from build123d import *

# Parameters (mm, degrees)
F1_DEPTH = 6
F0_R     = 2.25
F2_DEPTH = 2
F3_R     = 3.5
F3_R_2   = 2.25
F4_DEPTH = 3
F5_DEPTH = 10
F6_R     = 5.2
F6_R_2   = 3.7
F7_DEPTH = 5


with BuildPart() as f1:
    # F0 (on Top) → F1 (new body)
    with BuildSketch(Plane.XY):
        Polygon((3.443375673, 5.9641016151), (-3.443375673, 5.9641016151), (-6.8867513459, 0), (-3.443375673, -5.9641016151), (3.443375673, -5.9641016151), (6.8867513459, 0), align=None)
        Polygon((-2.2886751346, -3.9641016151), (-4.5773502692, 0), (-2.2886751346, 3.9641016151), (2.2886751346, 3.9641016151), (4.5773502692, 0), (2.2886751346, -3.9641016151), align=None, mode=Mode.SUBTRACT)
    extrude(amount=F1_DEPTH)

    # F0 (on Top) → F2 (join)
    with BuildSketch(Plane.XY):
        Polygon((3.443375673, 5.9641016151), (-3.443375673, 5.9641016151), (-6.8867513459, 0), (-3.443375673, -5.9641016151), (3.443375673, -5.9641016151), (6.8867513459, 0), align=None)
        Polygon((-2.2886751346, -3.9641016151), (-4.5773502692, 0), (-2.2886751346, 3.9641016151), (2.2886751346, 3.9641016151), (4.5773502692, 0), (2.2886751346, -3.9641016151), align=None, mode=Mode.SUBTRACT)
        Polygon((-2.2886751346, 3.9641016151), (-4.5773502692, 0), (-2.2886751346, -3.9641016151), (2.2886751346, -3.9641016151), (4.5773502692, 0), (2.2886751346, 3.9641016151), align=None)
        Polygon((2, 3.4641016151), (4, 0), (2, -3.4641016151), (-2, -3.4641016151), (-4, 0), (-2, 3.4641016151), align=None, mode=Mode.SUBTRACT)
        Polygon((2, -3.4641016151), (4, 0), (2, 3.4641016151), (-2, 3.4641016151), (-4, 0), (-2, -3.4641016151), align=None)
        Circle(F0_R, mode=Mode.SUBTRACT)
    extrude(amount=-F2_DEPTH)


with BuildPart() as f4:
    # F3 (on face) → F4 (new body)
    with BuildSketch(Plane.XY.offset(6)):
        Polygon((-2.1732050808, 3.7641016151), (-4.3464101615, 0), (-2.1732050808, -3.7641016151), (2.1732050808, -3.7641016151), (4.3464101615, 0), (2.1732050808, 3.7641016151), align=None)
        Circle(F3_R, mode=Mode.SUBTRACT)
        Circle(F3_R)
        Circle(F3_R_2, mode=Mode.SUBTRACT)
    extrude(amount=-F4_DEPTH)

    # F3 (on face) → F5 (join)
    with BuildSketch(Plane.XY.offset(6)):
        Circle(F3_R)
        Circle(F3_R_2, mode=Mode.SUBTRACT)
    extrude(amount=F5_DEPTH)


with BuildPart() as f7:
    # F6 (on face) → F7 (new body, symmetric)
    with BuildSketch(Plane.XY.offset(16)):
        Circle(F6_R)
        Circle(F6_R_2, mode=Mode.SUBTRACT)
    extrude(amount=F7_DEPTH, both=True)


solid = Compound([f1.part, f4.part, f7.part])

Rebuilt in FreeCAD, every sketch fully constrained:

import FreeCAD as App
import Part
import Sketcher
Q = App.Units.Quantity

doc = App.newDocument("Part")
body = doc.addObject("PartDesign::Body", "Body")

sketch1 = doc.addObject("Sketcher::SketchObject", "Sketch")
body.addObject(sketch1)
sketch1.AttachmentSupport = (doc.XY_Plane, [""])
sketch1.MapMode = "FlatFace"
sketch1.addGeometry(Part.LineSegment(App.Vector(3.4, 6, 0), App.Vector(-3.4, 6, 0)), False)
sketch1.addGeometry(Part.LineSegment(App.Vector(-3.4, 6, 0), App.Vector(-6.9, 0, 0)), False)
sketch1.addGeometry(Part.LineSegment(App.Vector(-6.9, 0, 0), App.Vector(-3.4, -6, 0)), False)
sketch1.addGeometry(Part.LineSegment(App.Vector(-3.4, -6, 0), App.Vector(3.4, -6, 0)), False)
sketch1.addGeometry(Part.LineSegment(App.Vector(3.4, -6, 0), App.Vector(6.9, 0, 0)), False)
sketch1.addGeometry(Part.LineSegment(App.Vector(6.9, 0, 0), App.Vector(3.4, 6, 0)), False)
sketch1.addGeometry(Part.LineSegment(App.Vector(2.3, -4, 0), App.Vector(-2.3, -4, 0)), False)
sketch1.addGeometry(Part.LineSegment(App.Vector(-2.3, -4, 0), App.Vector(-4.6, 0, 0)), False)
sketch1.addGeometry(Part.LineSegment(App.Vector(-4.6, 0, 0), App.Vector(-2.3, 4, 0)), False)
sketch1.addGeometry(Part.LineSegment(App.Vector(-2.3, 4, 0), App.Vector(2.3, 4, 0)), False)
sketch1.addGeometry(Part.LineSegment(App.Vector(2.3, 4, 0), App.Vector(4.6, 0, 0)), False)
sketch1.addGeometry(Part.LineSegment(App.Vector(4.6, 0, 0), App.Vector(2.3, -4, 0)), False)
sketch1.addConstraint(Sketcher.Constraint("Coincident", 0, 2, 1, 1))
sketch1.addConstraint(Sketcher.Constraint("Coincident", 1, 2, 2, 1))
sketch1.addConstraint(Sketcher.Constraint("Coincident", 2, 2, 3, 1))
sketch1.addConstraint(Sketcher.Constraint("Coincident", 3, 2, 4, 1))
sketch1.addConstraint(Sketcher.Constraint("Coincident", 4, 2, 5, 1))
sketch1.addConstraint(Sketcher.Constraint("Coincident", 5, 2, 0, 1))
sketch1.addConstraint(Sketcher.Constraint("Coincident", 6, 2, 7, 1))
sketch1.addConstraint(Sketcher.Constraint("Coincident", 7, 2, 8, 1))
sketch1.addConstraint(Sketcher.Constraint("Coincident", 8, 2, 9, 1))
sketch1.addConstraint(Sketcher.Constraint("Coincident", 9, 2, 10, 1))
sketch1.addConstraint(Sketcher.Constraint("Coincident", 10, 2, 11, 1))
sketch1.addConstraint(Sketcher.Constraint("Coincident", 11, 2, 6, 1))
sketch1.addConstraint(Sketcher.Constraint("Horizontal", 0))
sketch1.addConstraint(Sketcher.Constraint("Horizontal", 3))
sketch1.addConstraint(Sketcher.Constraint("Horizontal", 6))
sketch1.addConstraint(Sketcher.Constraint("Horizontal", 9))
sketch1.addConstraint(Sketcher.Constraint("Symmetric", 0, 2, 3, 2, -1, 1))
sketch1.addConstraint(Sketcher.Constraint("Symmetric", 1, 2, 4, 2, -1, 1))
sketch1.addConstraint(Sketcher.Constraint("Symmetric", 6, 2, 9, 2, -1, 1))
sketch1.addConstraint(Sketcher.Constraint("Symmetric", 7, 2, 10, 2, -1, 1))
sketch1.addConstraint(Sketcher.Constraint("PointOnObject", 1, 2, -1))
sketch1.addConstraint(Sketcher.Constraint("PointOnObject", 7, 2, -1))
sketch1.addConstraint(Sketcher.Constraint("Parallel", 2, 5))
sketch1.addConstraint(Sketcher.Constraint("Parallel", 5, 7))
sketch1.addConstraint(Sketcher.Constraint("Parallel", 4, 8))
sketch1.addConstraint(Sketcher.Constraint("Parallel", 8, 11))
sketch1.addConstraint(Sketcher.Constraint("Vertical", 0, 2, 2, 2))
sketch1.addConstraint(Sketcher.Constraint("Angle", 1, Q("-120 deg")))
sketch1.addConstraint(Sketcher.Constraint("DistanceY", 2, 2, 6, 2, Q("2 mm")))
sketch1.addConstraint(Sketcher.Constraint("DistanceX", 0, 2, 0, 1, Q("6.886751 mm")))
sketch1.addConstraint(Sketcher.Constraint("DistanceX", 6, 2, 6, 1, Q("4.57735 mm")))
sketch1.addConstraint(Sketcher.Constraint("DistanceY", -1, 1, 0, 2, Q("5.964102 mm")))
pad1 = doc.addObject("PartDesign::Pad", "Pad")
body.addObject(pad1)
pad1.Profile = sketch1
pad1.Length = 6

sketch2 = doc.addObject("Sketcher::SketchObject", "Sketch001")
body.addObject(sketch2)
sketch2.AttachmentSupport = (doc.XY_Plane, [""])
sketch2.MapMode = "FlatFace"
sketch2.addGeometry(Part.LineSegment(App.Vector(3.4, 6, 0), App.Vector(-3.4, 6, 0)), False)
sketch2.addGeometry(Part.LineSegment(App.Vector(-3.4, 6, 0), App.Vector(-6.9, 0, 0)), False)
sketch2.addGeometry(Part.LineSegment(App.Vector(-6.9, 0, 0), App.Vector(-3.4, -6, 0)), False)
sketch2.addGeometry(Part.LineSegment(App.Vector(-3.4, -6, 0), App.Vector(3.4, -6, 0)), False)
sketch2.addGeometry(Part.LineSegment(App.Vector(3.4, -6, 0), App.Vector(6.9, 0, 0)), False)
sketch2.addGeometry(Part.LineSegment(App.Vector(6.9, 0, 0), App.Vector(3.4, 6, 0)), False)
sketch2.addGeometry(Part.Circle(App.Vector(0, 0, 0), App.Vector(0, 0, 1), 2.2), False)
sketch2.addConstraint(Sketcher.Constraint("Coincident", 0, 2, 1, 1))
sketch2.addConstraint(Sketcher.Constraint("Coincident", 1, 2, 2, 1))
sketch2.addConstraint(Sketcher.Constraint("Coincident", 2, 2, 3, 1))
sketch2.addConstraint(Sketcher.Constraint("Coincident", 3, 2, 4, 1))
sketch2.addConstraint(Sketcher.Constraint("Coincident", 4, 2, 5, 1))
sketch2.addConstraint(Sketcher.Constraint("Coincident", 5, 2, 0, 1))
sketch2.addConstraint(Sketcher.Constraint("Horizontal", 0))
sketch2.addConstraint(Sketcher.Constraint("Horizontal", 3))
sketch2.addConstraint(Sketcher.Constraint("Coincident", 6, 3, -1, 1))
sketch2.addConstraint(Sketcher.Constraint("Symmetric", 0, 2, 3, 2, -1, 1))
sketch2.addConstraint(Sketcher.Constraint("Symmetric", 1, 2, 4, 2, -1, 1))
sketch2.addConstraint(Sketcher.Constraint("PointOnObject", 1, 2, -1))
sketch2.addConstraint(Sketcher.Constraint("Parallel", 2, 5))
sketch2.addConstraint(Sketcher.Constraint("Vertical", 0, 2, 2, 2))
sketch2.addConstraint(Sketcher.Constraint("Diameter", 6, Q("4.5 mm")))
sketch2.addConstraint(Sketcher.Constraint("Angle", 1, Q("-120 deg")))
sketch2.addConstraint(Sketcher.Constraint("DistanceX", 0, 2, 0, 1, Q("6.886751 mm")))
sketch2.addConstraint(Sketcher.Constraint("DistanceY", -1, 1, 0, 2, Q("5.964102 mm")))
pad2 = doc.addObject("PartDesign::Pad", "Pad001")
body.addObject(pad2)
pad2.Profile = sketch2
pad2.Length = 2
pad2.Reversed = True
body2 = doc.addObject("PartDesign::Body", "Body001")

sketch3 = doc.addObject("Sketcher::SketchObject", "Sketch002")
body2.addObject(sketch3)
sketch3.AttachmentSupport = (doc.getObject("XY_Plane001"), [""])
sketch3.MapMode = "FlatFace"
sketch3.AttachmentOffset = App.Placement(App.Vector(0, 0, 6), App.Rotation())
sketch3.addGeometry(Part.LineSegment(App.Vector(-2.2, 3.8, 0), App.Vector(-4.3, 0, 0)), False)
sketch3.addGeometry(Part.LineSegment(App.Vector(-4.3, 0, 0), App.Vector(-2.2, -3.8, 0)), False)
sketch3.addGeometry(Part.LineSegment(App.Vector(-2.2, -3.8, 0), App.Vector(2.2, -3.8, 0)), False)
sketch3.addGeometry(Part.LineSegment(App.Vector(2.2, -3.8, 0), App.Vector(4.3, 0, 0)), False)
sketch3.addGeometry(Part.LineSegment(App.Vector(4.3, 0, 0), App.Vector(2.2, 3.8, 0)), False)
sketch3.addGeometry(Part.LineSegment(App.Vector(2.2, 3.8, 0), App.Vector(-2.2, 3.8, 0)), False)
sketch3.addGeometry(Part.Circle(App.Vector(0, 0, 0), App.Vector(0, 0, 1), 2.2), False)
sketch3.addConstraint(Sketcher.Constraint("Coincident", 0, 2, 1, 1))
sketch3.addConstraint(Sketcher.Constraint("Coincident", 1, 2, 2, 1))
sketch3.addConstraint(Sketcher.Constraint("Coincident", 2, 2, 3, 1))
sketch3.addConstraint(Sketcher.Constraint("Coincident", 3, 2, 4, 1))
sketch3.addConstraint(Sketcher.Constraint("Coincident", 4, 2, 5, 1))
sketch3.addConstraint(Sketcher.Constraint("Coincident", 5, 2, 0, 1))
sketch3.addConstraint(Sketcher.Constraint("Horizontal", 2))
sketch3.addConstraint(Sketcher.Constraint("Horizontal", 5))
sketch3.addConstraint(Sketcher.Constraint("Coincident", 6, 3, -1, 1))
sketch3.addConstraint(Sketcher.Constraint("Symmetric", 0, 2, 3, 2, -1, 1))
sketch3.addConstraint(Sketcher.Constraint("Symmetric", 1, 2, 4, 2, -1, 1))
sketch3.addConstraint(Sketcher.Constraint("PointOnObject", 0, 2, -1))
sketch3.addConstraint(Sketcher.Constraint("Parallel", 0, 3))
sketch3.addConstraint(Sketcher.Constraint("Vertical", 2, 2, 4, 2))
sketch3.addConstraint(Sketcher.Constraint("Diameter", 6, Q("4.5 mm")))
sketch3.addConstraint(Sketcher.Constraint("Angle", 0, Q("-120 deg")))
sketch3.addConstraint(Sketcher.Constraint("DistanceX", 2, 1, 2, 2, Q("4.34641 mm")))
sketch3.addConstraint(Sketcher.Constraint("DistanceY", 1, 2, -1, 1, Q("3.764102 mm")))
pad3 = doc.addObject("PartDesign::Pad", "Pad002")
body2.addObject(pad3)
pad3.Profile = sketch3
pad3.Length = 3
pad3.Reversed = True

sketch4 = doc.addObject("Sketcher::SketchObject", "Sketch003")
body2.addObject(sketch4)
sketch4.AttachmentSupport = (doc.getObject("XY_Plane001"), [""])
sketch4.MapMode = "FlatFace"
sketch4.AttachmentOffset = App.Placement(App.Vector(0, 0, 6), App.Rotation())
sketch4.addGeometry(Part.Circle(App.Vector(0, 0, 0), App.Vector(0, 0, 1), 3.5), False)
sketch4.addGeometry(Part.Circle(App.Vector(0, 0, 0), App.Vector(0, 0, 1), 2.2), False)
sketch4.addConstraint(Sketcher.Constraint("Coincident", 0, 3, -1, 1))
sketch4.addConstraint(Sketcher.Constraint("Coincident", 1, 3, -1, 1))
sketch4.addConstraint(Sketcher.Constraint("Diameter", 0, Q("7 mm")))
sketch4.addConstraint(Sketcher.Constraint("Diameter", 1, Q("4.5 mm")))
pad4 = doc.addObject("PartDesign::Pad", "Pad003")
body2.addObject(pad4)
pad4.Profile = sketch4
pad4.Length = 10
body3 = doc.addObject("PartDesign::Body", "Body002")

sketch5 = doc.addObject("Sketcher::SketchObject", "Sketch004")
body3.addObject(sketch5)
sketch5.AttachmentSupport = (doc.getObject("XY_Plane002"), [""])
sketch5.MapMode = "FlatFace"
sketch5.AttachmentOffset = App.Placement(App.Vector(0, 0, 16), App.Rotation())
sketch5.addGeometry(Part.Circle(App.Vector(0, 0, 0), App.Vector(0, 0, 1), 5.2), False)
sketch5.addGeometry(Part.Circle(App.Vector(0, 0, 0), App.Vector(0, 0, 1), 3.7), False)
sketch5.addConstraint(Sketcher.Constraint("Coincident", 0, 3, -1, 1))
sketch5.addConstraint(Sketcher.Constraint("Coincident", 1, 3, -1, 1))
sketch5.addConstraint(Sketcher.Constraint("Diameter", 0, Q("10.4 mm")))
sketch5.addConstraint(Sketcher.Constraint("Diameter", 1, Q("7.4 mm")))
pad5 = doc.addObject("PartDesign::Pad", "Pad004")
body3.addObject(pad5)
pad5.Profile = sketch5
pad5.Length = 10
pad5.Midplane = True

doc.recompute()
